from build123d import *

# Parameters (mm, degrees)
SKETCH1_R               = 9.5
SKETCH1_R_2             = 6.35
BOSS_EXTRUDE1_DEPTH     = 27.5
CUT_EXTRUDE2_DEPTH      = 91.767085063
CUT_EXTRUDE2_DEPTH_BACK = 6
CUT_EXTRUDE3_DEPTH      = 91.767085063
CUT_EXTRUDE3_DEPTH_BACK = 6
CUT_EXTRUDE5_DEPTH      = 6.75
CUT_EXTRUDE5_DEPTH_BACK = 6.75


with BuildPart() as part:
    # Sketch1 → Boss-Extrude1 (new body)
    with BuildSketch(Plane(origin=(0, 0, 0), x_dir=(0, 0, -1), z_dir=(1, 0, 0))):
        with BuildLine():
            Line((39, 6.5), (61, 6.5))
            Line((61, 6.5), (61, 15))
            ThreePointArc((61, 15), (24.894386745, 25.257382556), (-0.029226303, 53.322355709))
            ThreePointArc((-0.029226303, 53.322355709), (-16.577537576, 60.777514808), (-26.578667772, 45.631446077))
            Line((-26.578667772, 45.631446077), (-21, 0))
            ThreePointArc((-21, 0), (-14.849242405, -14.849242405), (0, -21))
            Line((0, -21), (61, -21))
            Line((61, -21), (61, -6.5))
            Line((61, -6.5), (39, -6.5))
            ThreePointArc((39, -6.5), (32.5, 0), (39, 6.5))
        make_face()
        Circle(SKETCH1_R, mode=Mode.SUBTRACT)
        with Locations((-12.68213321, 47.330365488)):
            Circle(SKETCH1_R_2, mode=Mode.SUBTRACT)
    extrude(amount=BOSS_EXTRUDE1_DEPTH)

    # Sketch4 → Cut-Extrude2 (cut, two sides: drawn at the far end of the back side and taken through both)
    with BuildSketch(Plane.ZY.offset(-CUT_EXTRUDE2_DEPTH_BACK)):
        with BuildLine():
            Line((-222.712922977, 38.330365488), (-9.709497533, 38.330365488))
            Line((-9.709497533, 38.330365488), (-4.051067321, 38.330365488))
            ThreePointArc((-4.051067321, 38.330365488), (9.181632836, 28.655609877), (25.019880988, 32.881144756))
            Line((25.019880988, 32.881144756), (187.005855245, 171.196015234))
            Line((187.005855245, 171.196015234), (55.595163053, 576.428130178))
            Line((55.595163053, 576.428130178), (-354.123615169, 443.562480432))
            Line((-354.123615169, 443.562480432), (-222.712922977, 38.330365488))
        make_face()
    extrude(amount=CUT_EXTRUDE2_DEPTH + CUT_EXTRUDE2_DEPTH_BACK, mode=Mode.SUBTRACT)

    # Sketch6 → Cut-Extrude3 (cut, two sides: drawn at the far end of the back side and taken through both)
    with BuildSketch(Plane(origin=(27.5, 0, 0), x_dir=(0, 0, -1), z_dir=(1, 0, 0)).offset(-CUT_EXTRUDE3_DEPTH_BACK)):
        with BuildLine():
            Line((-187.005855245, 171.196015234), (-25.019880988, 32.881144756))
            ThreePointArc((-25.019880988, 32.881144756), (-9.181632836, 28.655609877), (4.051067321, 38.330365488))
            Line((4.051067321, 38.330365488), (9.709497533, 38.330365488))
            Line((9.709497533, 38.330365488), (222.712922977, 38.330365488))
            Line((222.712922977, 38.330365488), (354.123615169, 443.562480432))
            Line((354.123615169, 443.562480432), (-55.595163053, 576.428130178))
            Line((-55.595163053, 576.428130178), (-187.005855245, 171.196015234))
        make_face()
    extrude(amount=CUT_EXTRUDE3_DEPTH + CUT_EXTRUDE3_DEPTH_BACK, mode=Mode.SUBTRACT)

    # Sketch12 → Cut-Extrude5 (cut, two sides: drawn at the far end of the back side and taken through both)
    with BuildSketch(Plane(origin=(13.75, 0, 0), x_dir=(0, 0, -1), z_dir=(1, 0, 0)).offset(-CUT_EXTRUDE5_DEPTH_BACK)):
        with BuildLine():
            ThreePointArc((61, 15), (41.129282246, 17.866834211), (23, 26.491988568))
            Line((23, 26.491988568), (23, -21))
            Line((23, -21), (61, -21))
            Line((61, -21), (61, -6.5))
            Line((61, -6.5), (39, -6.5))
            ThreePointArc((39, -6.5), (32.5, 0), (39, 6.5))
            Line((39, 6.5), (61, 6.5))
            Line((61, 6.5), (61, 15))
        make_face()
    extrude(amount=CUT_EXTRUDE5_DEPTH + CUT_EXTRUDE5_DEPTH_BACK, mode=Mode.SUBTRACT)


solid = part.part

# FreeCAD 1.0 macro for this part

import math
import FreeCAD as App
import Part
import Sketcher
Q = App.Units.Quantity

doc = App.newDocument("Part")
body = doc.addObject("PartDesign::Body", "Body")

sketch1 = body.newObject("Sketcher::SketchObject", "Sketch")
sketch1.AttachmentSupport = (doc.getObject("YZ_Plane"), [""])
sketch1.MapMode = "FlatFace"
sketch1.addGeometry([
    Part.LineSegment(App.Vector(6.5, -39, 0), App.Vector(6.5, -61, 0)),
    Part.LineSegment(App.Vector(6.5, -61, 0), App.Vector(15, -61, 0)),
    Part.ArcOfCircle(Part.Circle(App.Vector(81.998309, -60.523971, 0), App.Vector(0, 0, 1), 67), math.radians(115.340658), math.radians(180.407085)),
    Part.ArcOfCircle(Part.Circle(App.Vector(47.330365, 12.682133, 0), App.Vector(0, 0, 1), 14), math.radians(-64.659342), math.radians(96.970101)),
    Part.LineSegment(App.Vector(45.631446, 26.578668, 0), App.Vector(0, 21, 0)),
    Part.ArcOfCircle(Part.Circle(App.Vector(0, 0, 0), App.Vector(0, 0, 1), 21), math.radians(90), math.radians(180)),
    Part.LineSegment(App.Vector(-21, 0, 0), App.Vector(-21, -61, 0)),
    Part.LineSegment(App.Vector(-21, -61, 0), App.Vector(-6.5, -61, 0)),
    Part.LineSegment(App.Vector(-6.5, -61, 0), App.Vector(-6.5, -39, 0)),
    Part.ArcOfCircle(Part.Circle(App.Vector(0, -39, 0), App.Vector(0, 0, 1), 6.5), math.radians(0), math.radians(180)),
    Part.Circle(App.Vector(0, 0, 0), App.Vector(0, 0, 1), 9.5),
    Part.Circle(App.Vector(47.330365, 12.682133, 0), App.Vector(0, 0, 1), 6.35),
], False)
sketch1.addConstraint([
    Sketcher.Constraint("Coincident", 0, 2, 1, 1),
    Sketcher.Constraint("Coincident", 1, 2, 2, 2),
    Sketcher.Constraint("Tangent", 2, 1, 3, 1),
    Sketcher.Constraint("Tangent", 3, 2, 4, 1),
    Sketcher.Constraint("Coincident", 4, 2, 5, 1),
    Sketcher.Constraint("Tangent", 5, 2, 6, 1),
    Sketcher.Constraint("Coincident", 6, 2, 7, 1),
    Sketcher.Constraint("Coincident", 7, 2, 8, 1),
    Sketcher.Constraint("Tangent", 8, 2, 9, 2),
    Sketcher.Constraint("Tangent", 9, 1, 0, 1),
    Sketcher.Constraint("Vertical", 0),
    Sketcher.Constraint("Horizontal", 1),
    Sketcher.Constraint("Vertical", 6),
    Sketcher.Constraint("Horizontal", 7),
    Sketcher.Constraint("Vertical", 8),
    Sketcher.Constraint("Coincident", 5, 3, -1, 1),
    Sketcher.Constraint("Coincident", 10, 3, -1, 1),
    Sketcher.Constraint("Coincident", 11, 3, 3, 3),
    Sketcher.Constraint("Symmetric", 0, 2, 7, 2, -2),
    Sketcher.Constraint("PointOnObject", 4, 2, -2),
    Sketcher.Constraint("Diameter", 10, Q("19 mm")),
    Sketcher.Constraint("Radius", 2, Q("67 mm")),
    Sketcher.Constraint("Radius", 3, Q("14 mm")),
    Sketcher.Constraint("Radius", 5, Q("21 mm")),
    Sketcher.Constraint("Diameter", 11, Q("12.7 mm")),
    Sketcher.Constraint("Radius", 9, Q("6.5 mm")),
    Sketcher.Constraint("DistanceY", 0, 2, 0, 1, Q("22 mm")),
    Sketcher.Constraint("DistanceY", 6, 2, 6, 1, Q("61 mm")),
    Sketcher.Constraint("DistanceX", 1, 1, 1, 2, Q("8.5 mm")),
    Sketcher.Constraint("Distance", 4, Q("45.971191 mm")),
    Sketcher.Constraint("DistanceX", -1, 1, 2, 3, Q("81.998309 mm")),
])
pad1 = body.newObject("PartDesign::Pad", "Pad")
pad1.Profile = sketch1
pad1.Length = 27.5

sketch2 = body.newObject("Sketcher::SketchObject", "Sketch001")
sketch2.AttachmentSupport = (doc.getObject("YZ_Plane"), [""])
sketch2.MapMode = "FlatFace"
sketch2.addGeometry([
    Part.LineSegment(App.Vector(38.330365, -222.712923, 0), App.Vector(38.330365, -4.051067, 0)),
    Part.ArcOfCircle(Part.Circle(App.Vector(47.330365, 12.682133, 0), App.Vector(0, 0, 1), 19), math.radians(139.507), math.radians(241.726286)),
    Part.LineSegment(App.Vector(32.881145, 25.019881, 0), App.Vector(171.196015, 187.005855, 0)),
    Part.LineSegment(App.Vector(171.196015, 187.005855, 0), App.Vector(576.42813, 55.595163, 0)),
    Part.LineSegment(App.Vector(576.42813, 55.595163, 0), App.Vector(443.56248, -354.123615, 0)),
    Part.LineSegment(App.Vector(443.56248, -354.123615, 0), App.Vector(38.330365, -222.712923, 0)),
], False)
sketch2.addConstraint([
    Sketcher.Constraint("Coincident", 0, 2, 1, 2),
    Sketcher.Constraint("Tangent", 1, 1, 2, 1),
    Sketcher.Constraint("Coincident", 2, 2, 3, 1),
    Sketcher.Constraint("Coincident", 3, 2, 4, 1),
    Sketcher.Constraint("Coincident", 4, 2, 5, 1),
    Sketcher.Constraint("Coincident", 5, 2, 0, 1),
    Sketcher.Constraint("Vertical", 0),
    Sketcher.Constraint("Perpendicular", 3, 4),
    Sketcher.Constraint("Perpendicular", 4, 5),
    Sketcher.Constraint("Equal", 3, 5),
    Sketcher.Constraint("Radius", 1, Q("19 mm")),
    Sketcher.Constraint("DistanceX", 0, 2, 1, 3, Q("9 mm")),
    Sketcher.Constraint("Distance", 3, Q("426.006851 mm")),
    Sketcher.Constraint("Distance", 4, Q("430.723529 mm")),
    Sketcher.Constraint("DistanceY", 0, 1, 0, 2, Q("218.661856 mm")),
    Sketcher.Constraint("DistanceY", -1, 1, 1, 1, Q("25.019881 mm")),
    Sketcher.Constraint("DistanceX", -1, 1, 3, 2, Q("576.42813 mm")),
    Sketcher.Constraint("DistanceX", -1, 1, 4, 2, Q("443.56248 mm")),
])
pocket1 = body.newObject("PartDesign::Pocket", "Pocket")
pocket1.Profile = sketch2
pocket1.Type = "TwoLengths"
pocket1.Length = 91.767085
pocket1.Length2 = 6

sketch3 = body.newObject("Sketcher::SketchObject", "Sketch002")
sketch3.AttachmentSupport = (doc.getObject("YZ_Plane"), [""])
sketch3.MapMode = "FlatFace"
sketch3.AttachmentOffset = App.Placement(App.Vector(0, 0, 27.5), App.Rotation())
sketch3.addGeometry([
    Part.LineSegment(App.Vector(171.196015, 187.005855, 0), App.Vector(32.881145, 25.019881, 0)),
    Part.ArcOfCircle(Part.Circle(App.Vector(47.330365, 12.682133, 0), App.Vector(0, 0, 1), 19), math.radians(139.507), math.radians(241.726286)),
    Part.LineSegment(App.Vector(38.330365, -4.051067, 0), App.Vector(38.330365, -222.712923, 0)),
    Part.LineSegment(App.Vector(38.330365, -222.712923, 0), App.Vector(443.56248, -354.123615, 0)),
    Part.LineSegment(App.Vector(443.56248, -354.123615, 0), App.Vector(576.42813, 55.595163, 0)),
    Part.LineSegment(App.Vector(576.42813, 55.595163, 0), App.Vector(171.196015, 187.005855, 0)),
], False)
sketch3.addConstraint([
    Sketcher.Constraint("Tangent", 0, 2, 1, 1),
    Sketcher.Constraint("Coincident", 1, 2, 2, 1),
    Sketcher.Constraint("Coincident", 2, 2, 3, 1),
    Sketcher.Constraint("Coincident", 3, 2, 4, 1),
    Sketcher.Constraint("Coincident", 4, 2, 5, 1),
    Sketcher.Constraint("Coincident", 5, 2, 0, 1),
    Sketcher.Constraint("Vertical", 2),
    Sketcher.Constraint("Perpendicular", 3, 4),
    Sketcher.Constraint("Perpendicular", 4, 5),
    Sketcher.Constraint("Equal", 3, 5),
    Sketcher.Constraint("Radius", 1, Q("19 mm")),
    Sketcher.Constraint("DistanceX", 1, 2, 1, 3, Q("9 mm")),
    Sketcher.Constraint("Distance", 3, Q("426.006851 mm")),
    Sketcher.Constraint("Distance", 4, Q("430.723529 mm")),
    Sketcher.Constraint("DistanceY", 2, 2, 2, 1, Q("218.661856 mm")),
    Sketcher.Constraint("DistanceY", -1, 1, 0, 2, Q("25.019881 mm")),
    Sketcher.Constraint("DistanceX", -1, 1, 3, 2, Q("443.56248 mm")),
    Sketcher.Constraint("DistanceX", -1, 1, 4, 2, Q("576.42813 mm")),
])
pocket2 = body.newObject("PartDesign::Pocket", "Pocket001")
pocket2.Profile = sketch3
pocket2.Type = "TwoLengths"
pocket2.Length = 91.767085
pocket2.Length2 = 6
pocket2.Reversed = True

sketch4 = body.newObject("Sketcher::SketchObject", "Sketch003")
sketch4.AttachmentSupport = (doc.getObject("YZ_Plane"), [""])
sketch4.MapMode = "FlatFace"
sketch4.AttachmentOffset = App.Placement(App.Vector(0, 0, 13.75), App.Rotation())
sketch4.addGeometry([
    Part.ArcOfCircle(Part.Circle(App.Vector(81.998309, -60.523971, 0), App.Vector(0, 0, 1), 67), math.radians(145.940103), math.radians(180.407085)),
    Part.LineSegment(App.Vector(26.491989, -23, 0), App.Vector(-21, -23, 0)),
    Part.LineSegment(App.Vector(-21, -23, 0), App.Vector(-21, -61, 0)),
    Part.LineSegment(App.Vector(-21, -61, 0), App.Vector(-6.5, -61, 0)),
    Part.LineSegment(App.Vector(-6.5, -61, 0), App.Vector(-6.5, -39, 0)),
    Part.ArcOfCircle(Part.Circle(App.Vector(0, -39, 0), App.Vector(0, 0, 1), 6.5), math.radians(0), math.radians(180)),
    Part.LineSegment(App.Vector(6.5, -39, 0), App.Vector(6.5, -61, 0)),
    Part.LineSegment(App.Vector(6.5, -61, 0), App.Vector(15, -61, 0)),
], False)
sketch4.addConstraint([
    Sketcher.Constraint("Coincident", 0, 1, 1, 1),
    Sketcher.Constraint("Coincident", 1, 2, 2, 1),
    Sketcher.Constraint("Coincident", 2, 2, 3, 1),
    Sketcher.Constraint("Coincident", 3, 2, 4, 1),
    Sketcher.Constraint("Tangent", 4, 2, 5, 2),
    Sketcher.Constraint("Tangent", 5, 1, 6, 1),
    Sketcher.Constraint("Coincident", 6, 2, 7, 1),
    Sketcher.Constraint("Coincident", 7, 2, 0, 2),
    Sketcher.Constraint("Horizontal", 1),
    Sketcher.Constraint("Vertical", 2),
    Sketcher.Constraint("Horizontal", 3),
    Sketcher.Constraint("Vertical", 4),
    Sketcher.Constraint("Vertical", 6),
    Sketcher.Constraint("Horizontal", 7),
    Sketcher.Constraint("Symmetric", 3, 2, 6, 2, -2),
    Sketcher.Constraint("Radius", 0, Q("67 mm")),
    Sketcher.Constraint("Radius", 5, Q("6.5 mm")),
    Sketcher.Constraint("DistanceY", 2, 2, 2, 1, Q("38 mm")),
    Sketcher.Constraint("DistanceY", 4, 1, 4, 2, Q("22 mm")),
    Sketcher.Constraint("DistanceX", 3, 1, 3, 2, Q("14.5 mm")),
    Sketcher.Constraint("DistanceX", 7, 1, 7, 2, Q("8.5 mm")),
    Sketcher.Constraint("DistanceY", 5, 3, -1, 1, Q("39 mm")),
    Sketcher.Constraint("DistanceX", 1, 2, 1, 1, Q("47.491989 mm")),
])
pocket3 = body.newObject("PartDesign::Pocket", "Pocket002")
pocket3.Profile = sketch4
pocket3.Type = "TwoLengths"
pocket3.Length = 6.75
pocket3.Length2 = 6.75
pocket3.Reversed = True

doc.recompute()
